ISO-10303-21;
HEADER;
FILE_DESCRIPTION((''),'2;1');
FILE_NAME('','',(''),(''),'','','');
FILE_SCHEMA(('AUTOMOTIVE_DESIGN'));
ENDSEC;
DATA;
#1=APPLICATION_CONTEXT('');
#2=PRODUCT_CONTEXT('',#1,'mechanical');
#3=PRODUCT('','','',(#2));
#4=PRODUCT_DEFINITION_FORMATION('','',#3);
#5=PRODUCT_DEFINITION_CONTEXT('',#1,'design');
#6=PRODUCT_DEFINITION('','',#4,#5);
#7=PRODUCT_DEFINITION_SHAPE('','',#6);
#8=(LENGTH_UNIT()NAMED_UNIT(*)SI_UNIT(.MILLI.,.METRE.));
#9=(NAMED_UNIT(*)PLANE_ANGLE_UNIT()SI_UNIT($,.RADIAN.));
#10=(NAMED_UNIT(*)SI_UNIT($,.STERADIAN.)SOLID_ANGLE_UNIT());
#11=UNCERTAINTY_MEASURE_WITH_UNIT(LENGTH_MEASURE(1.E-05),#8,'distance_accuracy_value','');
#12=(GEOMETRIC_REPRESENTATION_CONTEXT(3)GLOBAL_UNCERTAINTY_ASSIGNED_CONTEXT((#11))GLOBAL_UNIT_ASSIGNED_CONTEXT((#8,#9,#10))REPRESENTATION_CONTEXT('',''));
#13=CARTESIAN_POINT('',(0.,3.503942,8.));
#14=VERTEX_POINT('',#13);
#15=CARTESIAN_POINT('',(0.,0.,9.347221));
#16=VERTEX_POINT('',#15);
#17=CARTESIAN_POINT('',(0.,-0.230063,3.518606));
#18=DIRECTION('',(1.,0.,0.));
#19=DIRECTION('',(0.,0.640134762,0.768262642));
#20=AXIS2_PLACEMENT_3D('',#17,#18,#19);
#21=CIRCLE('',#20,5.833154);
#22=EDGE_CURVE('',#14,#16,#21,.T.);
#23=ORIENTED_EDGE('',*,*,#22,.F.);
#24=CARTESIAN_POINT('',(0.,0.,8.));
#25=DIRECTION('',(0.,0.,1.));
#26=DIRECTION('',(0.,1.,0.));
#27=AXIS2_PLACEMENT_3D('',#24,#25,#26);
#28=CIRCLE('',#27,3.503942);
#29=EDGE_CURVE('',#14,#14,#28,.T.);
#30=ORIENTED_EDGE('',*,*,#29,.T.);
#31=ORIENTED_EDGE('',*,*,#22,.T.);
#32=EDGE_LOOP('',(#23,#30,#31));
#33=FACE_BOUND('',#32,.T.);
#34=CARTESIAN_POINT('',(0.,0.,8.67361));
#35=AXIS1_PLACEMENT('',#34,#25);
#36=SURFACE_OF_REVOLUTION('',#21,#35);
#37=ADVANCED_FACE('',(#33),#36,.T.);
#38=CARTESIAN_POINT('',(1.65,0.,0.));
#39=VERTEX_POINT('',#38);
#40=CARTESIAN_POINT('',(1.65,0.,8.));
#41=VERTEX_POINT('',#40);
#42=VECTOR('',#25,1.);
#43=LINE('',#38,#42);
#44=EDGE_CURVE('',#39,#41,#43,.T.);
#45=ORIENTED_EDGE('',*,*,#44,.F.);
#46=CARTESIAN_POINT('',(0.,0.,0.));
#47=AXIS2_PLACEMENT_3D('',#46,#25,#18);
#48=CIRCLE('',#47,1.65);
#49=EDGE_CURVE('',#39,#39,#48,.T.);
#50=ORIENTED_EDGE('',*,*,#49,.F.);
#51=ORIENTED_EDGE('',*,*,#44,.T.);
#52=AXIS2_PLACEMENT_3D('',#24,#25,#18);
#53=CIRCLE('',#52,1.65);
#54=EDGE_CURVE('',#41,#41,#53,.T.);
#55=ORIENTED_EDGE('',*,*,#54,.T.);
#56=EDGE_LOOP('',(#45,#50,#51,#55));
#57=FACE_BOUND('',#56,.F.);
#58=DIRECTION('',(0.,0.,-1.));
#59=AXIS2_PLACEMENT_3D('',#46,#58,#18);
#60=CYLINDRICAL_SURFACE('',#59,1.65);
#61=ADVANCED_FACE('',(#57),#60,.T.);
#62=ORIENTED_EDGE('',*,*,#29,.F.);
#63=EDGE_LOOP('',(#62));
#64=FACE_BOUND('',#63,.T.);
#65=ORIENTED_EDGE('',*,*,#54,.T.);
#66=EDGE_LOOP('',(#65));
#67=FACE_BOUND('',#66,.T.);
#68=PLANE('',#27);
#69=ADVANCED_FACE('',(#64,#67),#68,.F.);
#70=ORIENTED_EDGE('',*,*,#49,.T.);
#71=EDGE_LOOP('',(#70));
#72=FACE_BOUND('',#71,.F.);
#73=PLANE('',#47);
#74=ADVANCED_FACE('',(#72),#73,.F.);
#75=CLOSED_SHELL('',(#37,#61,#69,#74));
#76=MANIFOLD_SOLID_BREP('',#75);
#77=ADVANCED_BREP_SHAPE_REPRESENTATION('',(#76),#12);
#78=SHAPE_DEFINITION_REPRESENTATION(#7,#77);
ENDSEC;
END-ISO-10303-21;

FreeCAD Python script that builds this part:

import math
import FreeCAD as App
import Part
import Sketcher
from FreeCAD import Vector

doc = App.newDocument("Part")
body = doc.addObject("PartDesign::Body", "Body")

# Sketch on XY plane
sketch1 = body.newObject("Sketcher::SketchObject", "Sketch")
sketch1.AttachmentSupport = (doc.getObject("XY_Plane"), [""])
sketch1.MapMode = "FlatFace"
sketch1.addGeometry(Part.Circle(Vector(0, 0, 0), Vector(0, 0, 1), 1.6), False)
sketch1.addConstraint([
    Sketcher.Constraint("Coincident", 0, 3, -1, 1),
    Sketcher.Constraint("Diameter", 0, 3.3),
])
pad1 = body.newObject("PartDesign::Pad", "Pad")
pad1.Profile = sketch1
pad1.Length = 8

# Sketch on YZ plane
sketch2 = body.newObject("Sketcher::SketchObject", "Sketch001")
sketch2.AttachmentSupport = (doc.getObject("YZ_Plane"), [""])
sketch2.MapMode = "FlatFace"
sketch2.addGeometry([
    Part.LineSegment(Vector(0, 9.3, 0), Vector(0, 8, 0)),
    Part.LineSegment(Vector(0, 8, 0), Vector(3.5, 8, 0)),
    Part.ArcOfCircle(Part.Circle(Vector(-0.2, 3.5, 0), Vector(0, 0, 1), 5.8), math.radians(50), math.radians(88)),
], False)
sketch2.addConstraint([
    Sketcher.Constraint("Coincident", 0, 2, 1, 1),
    Sketcher.Constraint("Coincident", 1, 2, 2, 1),
    Sketcher.Constraint("Coincident", 2, 2, 0, 1),
    Sketcher.Constraint("Vertical", 0),
    Sketcher.Constraint("Horizontal", 1),
    Sketcher.Constraint("PointOnObject", 0, 2, -2),
    Sketcher.Constraint("DistanceY", -1, 1, 0, 2, 8.0),
    Sketcher.Constraint("Radius", 2, 5.833154),
    Sketcher.Constraint("DistanceX", 1, 1, 1, 2, 3.503942),
    Sketcher.Constraint("DistanceY", 0, 2, 0, 1, 1.347221),
])
revolution = body.newObject("PartDesign::Revolution", "Revolution")
revolution.Profile = sketch2
revolution.ReferenceAxis = (sketch2, ["V_Axis"])
revolution.Angle = 360

doc.recompute()
